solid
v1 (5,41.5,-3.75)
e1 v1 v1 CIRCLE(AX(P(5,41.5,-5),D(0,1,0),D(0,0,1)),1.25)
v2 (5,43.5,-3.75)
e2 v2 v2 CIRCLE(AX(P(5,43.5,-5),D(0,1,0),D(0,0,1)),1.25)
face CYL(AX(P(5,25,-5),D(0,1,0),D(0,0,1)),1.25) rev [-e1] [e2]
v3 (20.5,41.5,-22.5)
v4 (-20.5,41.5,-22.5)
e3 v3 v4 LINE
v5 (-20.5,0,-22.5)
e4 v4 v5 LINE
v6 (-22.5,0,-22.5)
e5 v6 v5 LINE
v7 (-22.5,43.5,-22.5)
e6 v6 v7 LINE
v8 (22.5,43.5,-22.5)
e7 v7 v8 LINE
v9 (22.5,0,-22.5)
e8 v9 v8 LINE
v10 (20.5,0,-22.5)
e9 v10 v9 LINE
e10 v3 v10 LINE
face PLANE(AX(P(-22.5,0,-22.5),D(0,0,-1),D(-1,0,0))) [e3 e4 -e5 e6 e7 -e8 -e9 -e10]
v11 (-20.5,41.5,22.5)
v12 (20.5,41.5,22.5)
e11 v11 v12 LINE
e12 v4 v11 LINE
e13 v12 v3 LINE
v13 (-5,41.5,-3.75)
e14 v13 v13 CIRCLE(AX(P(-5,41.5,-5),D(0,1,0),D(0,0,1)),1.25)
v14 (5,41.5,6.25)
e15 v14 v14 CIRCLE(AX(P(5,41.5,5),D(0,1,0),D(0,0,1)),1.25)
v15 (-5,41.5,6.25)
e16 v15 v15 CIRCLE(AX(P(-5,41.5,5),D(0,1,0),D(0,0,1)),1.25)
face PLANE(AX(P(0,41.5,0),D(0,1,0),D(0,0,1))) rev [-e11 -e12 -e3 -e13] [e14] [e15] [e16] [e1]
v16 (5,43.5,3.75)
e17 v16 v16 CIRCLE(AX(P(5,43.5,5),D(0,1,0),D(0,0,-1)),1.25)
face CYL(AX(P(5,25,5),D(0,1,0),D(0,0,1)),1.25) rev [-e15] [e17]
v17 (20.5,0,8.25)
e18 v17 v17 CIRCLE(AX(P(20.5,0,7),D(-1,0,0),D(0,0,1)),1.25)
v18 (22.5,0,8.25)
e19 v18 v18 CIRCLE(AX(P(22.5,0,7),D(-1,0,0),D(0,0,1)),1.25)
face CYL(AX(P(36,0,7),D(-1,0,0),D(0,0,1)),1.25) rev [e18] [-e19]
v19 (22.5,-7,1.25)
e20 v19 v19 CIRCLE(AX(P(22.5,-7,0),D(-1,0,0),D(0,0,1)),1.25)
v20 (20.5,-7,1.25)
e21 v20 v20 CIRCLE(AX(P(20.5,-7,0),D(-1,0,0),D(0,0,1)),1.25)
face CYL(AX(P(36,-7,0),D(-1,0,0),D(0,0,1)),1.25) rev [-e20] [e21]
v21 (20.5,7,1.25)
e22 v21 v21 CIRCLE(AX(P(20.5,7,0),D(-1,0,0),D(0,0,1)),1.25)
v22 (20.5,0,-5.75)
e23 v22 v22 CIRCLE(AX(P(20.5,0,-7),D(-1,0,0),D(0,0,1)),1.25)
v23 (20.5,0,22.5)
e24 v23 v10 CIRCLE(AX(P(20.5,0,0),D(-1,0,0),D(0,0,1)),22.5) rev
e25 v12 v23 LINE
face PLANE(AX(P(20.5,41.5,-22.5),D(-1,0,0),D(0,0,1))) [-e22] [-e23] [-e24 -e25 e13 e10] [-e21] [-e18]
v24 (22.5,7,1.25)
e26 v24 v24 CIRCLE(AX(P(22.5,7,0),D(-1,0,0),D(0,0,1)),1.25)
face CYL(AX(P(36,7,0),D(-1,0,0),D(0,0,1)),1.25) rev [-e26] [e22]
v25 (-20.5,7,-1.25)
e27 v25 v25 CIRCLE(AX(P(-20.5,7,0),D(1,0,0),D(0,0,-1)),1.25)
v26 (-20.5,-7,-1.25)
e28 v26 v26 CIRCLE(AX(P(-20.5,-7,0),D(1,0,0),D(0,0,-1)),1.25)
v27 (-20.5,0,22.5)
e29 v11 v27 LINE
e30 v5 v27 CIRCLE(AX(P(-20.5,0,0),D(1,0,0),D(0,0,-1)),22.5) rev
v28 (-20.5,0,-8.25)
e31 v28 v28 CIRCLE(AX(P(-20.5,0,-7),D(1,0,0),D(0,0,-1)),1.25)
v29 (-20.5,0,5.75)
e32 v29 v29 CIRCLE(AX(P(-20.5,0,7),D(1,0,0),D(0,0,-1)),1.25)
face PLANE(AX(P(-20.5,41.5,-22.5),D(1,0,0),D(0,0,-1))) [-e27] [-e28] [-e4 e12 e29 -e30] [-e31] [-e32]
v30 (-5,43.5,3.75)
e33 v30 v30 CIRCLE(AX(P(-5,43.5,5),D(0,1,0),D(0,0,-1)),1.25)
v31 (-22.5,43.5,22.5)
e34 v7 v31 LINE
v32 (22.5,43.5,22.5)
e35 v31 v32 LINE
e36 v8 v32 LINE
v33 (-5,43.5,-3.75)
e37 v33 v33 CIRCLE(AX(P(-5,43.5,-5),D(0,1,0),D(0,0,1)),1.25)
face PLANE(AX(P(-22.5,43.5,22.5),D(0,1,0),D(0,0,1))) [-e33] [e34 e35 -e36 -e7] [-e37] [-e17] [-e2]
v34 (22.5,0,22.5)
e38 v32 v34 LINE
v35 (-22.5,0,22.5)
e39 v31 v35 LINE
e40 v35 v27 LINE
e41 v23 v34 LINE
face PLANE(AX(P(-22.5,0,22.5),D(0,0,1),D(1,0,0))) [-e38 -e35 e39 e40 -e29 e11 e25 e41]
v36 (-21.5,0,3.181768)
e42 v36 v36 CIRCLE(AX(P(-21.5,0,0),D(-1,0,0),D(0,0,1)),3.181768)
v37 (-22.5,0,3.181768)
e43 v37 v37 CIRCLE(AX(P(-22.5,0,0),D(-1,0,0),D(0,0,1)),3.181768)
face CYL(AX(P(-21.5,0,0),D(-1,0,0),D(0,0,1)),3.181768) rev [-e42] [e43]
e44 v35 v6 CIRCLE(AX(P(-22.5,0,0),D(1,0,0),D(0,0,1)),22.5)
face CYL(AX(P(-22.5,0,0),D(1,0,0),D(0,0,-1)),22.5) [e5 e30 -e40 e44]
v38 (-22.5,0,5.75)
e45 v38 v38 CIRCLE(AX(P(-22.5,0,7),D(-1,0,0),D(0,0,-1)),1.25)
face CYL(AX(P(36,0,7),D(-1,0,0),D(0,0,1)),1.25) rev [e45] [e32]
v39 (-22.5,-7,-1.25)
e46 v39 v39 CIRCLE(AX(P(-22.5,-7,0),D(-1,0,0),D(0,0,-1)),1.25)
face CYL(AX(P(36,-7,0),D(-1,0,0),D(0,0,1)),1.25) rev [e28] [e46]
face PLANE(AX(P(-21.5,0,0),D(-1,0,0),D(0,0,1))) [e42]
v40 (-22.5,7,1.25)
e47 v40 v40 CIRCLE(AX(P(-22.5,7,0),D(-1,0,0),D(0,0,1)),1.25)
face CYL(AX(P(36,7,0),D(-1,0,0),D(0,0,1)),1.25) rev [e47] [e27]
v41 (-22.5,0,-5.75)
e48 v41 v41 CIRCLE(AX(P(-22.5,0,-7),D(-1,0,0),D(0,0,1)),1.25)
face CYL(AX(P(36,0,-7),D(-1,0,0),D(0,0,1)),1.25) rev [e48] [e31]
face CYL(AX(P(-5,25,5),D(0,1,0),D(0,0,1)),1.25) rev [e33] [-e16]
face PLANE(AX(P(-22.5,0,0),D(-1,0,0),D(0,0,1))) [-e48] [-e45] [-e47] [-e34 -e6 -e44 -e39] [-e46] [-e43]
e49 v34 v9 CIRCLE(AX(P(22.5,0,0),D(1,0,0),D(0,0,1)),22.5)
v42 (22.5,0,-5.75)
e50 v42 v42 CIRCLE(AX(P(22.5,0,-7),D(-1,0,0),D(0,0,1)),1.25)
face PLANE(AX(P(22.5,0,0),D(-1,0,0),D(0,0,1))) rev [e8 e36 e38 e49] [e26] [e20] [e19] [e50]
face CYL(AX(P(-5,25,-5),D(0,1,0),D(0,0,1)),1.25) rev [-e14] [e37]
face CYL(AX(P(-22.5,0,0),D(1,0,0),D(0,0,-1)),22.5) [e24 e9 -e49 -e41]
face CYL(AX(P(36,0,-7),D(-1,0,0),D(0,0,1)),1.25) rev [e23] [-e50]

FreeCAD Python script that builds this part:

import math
import FreeCAD as App
import Part
import Sketcher

V = App.Vector

doc = App.newDocument("Part")
body = doc.addObject("PartDesign::Body", "Body")

sketch1 = body.newObject("Sketcher::SketchObject", "Sketch")
sketch1.AttachmentSupport = (doc.getObject("YZ_Plane"), [""])
sketch1.MapMode = "FlatFace"
sketch1.addGeometry(Part.LineSegment(V(44, 22, 0), V(0, 22, 0)), False)
sketch1.addGeometry(Part.ArcOfCircle(Part.Circle(V(0, 0, 0), V(0, 0, 1), 22), math.radians(90), math.radians(270)), False)
sketch1.addGeometry(Part.LineSegment(V(0, -22, 0), V(44, -22, 0)), False)
sketch1.addGeometry(Part.LineSegment(V(44, -22, 0), V(44, 22, 0)), False)
sketch1.addConstraint(Sketcher.Constraint("Tangent", 0, 2, 1, 1))
sketch1.addConstraint(Sketcher.Constraint("Tangent", 1, 2, 2, 1))
sketch1.addConstraint(Sketcher.Constraint("Coincident", 2, 2, 3, 1))
sketch1.addConstraint(Sketcher.Constraint("Coincident", 3, 2, 0, 1))
sketch1.addConstraint(Sketcher.Constraint("Horizontal", 0))
sketch1.addConstraint(Sketcher.Constraint("Horizontal", 2))
sketch1.addConstraint(Sketcher.Constraint("Vertical", 3))
sketch1.addConstraint(Sketcher.Constraint("Coincident", 1, 3, -1, 1))
sketch1.addConstraint(Sketcher.Constraint("Radius", 1, 22.5))
sketch1.addConstraint(Sketcher.Constraint("DistanceX", 0, 2, 0, 1, 43.5))
pad1 = body.newObject("PartDesign::Pad", "Pad")
pad1.Profile = sketch1
pad1.Type = "TwoLengths"
pad1.Length = 22.5
pad1.Length2 = 22.5

sketch2 = body.newObject("Sketcher::SketchObject", "Sketch001")
sketch2.AttachmentSupport = (doc.getObject("XZ_Plane"), [""])
sketch2.MapMode = "FlatFace"
sketch2.addGeometry(Part.LineSegment(V(-20, -22, 0), V(-20, 22, 0)), False)
sketch2.addGeometry(Part.LineSegment(V(-20, 22, 0), V(20, 22, 0)), False)
sketch2.addGeometry(Part.LineSegment(V(20, 22, 0), V(20, -22, 0)), False)
sketch2.addGeometry(Part.LineSegment(V(20, -22, 0), V(-20, -22, 0)), False)
sketch2.addConstraint(Sketcher.Constraint("Coincident", 0, 2, 1, 1))
sketch2.addConstraint(Sketcher.Constraint("Coincident", 1, 2, 2, 1))
sketch2.addConstraint(Sketcher.Constraint("Coincident", 2, 2, 3, 1))
sketch2.addConstraint(Sketcher.Constraint("Coincident", 3, 2, 0, 1))
sketch2.addConstraint(Sketcher.Constraint("Vertical", 0))
sketch2.addConstraint(Sketcher.Constraint("Horizontal", 1))
sketch2.addConstraint(Sketcher.Constraint("Vertical", 2))
sketch2.addConstraint(Sketcher.Constraint("Horizontal", 3))
sketch2.addConstraint(Sketcher.Constraint("Symmetric", 0, 2, 2, 2, -1, 1))
sketch2.addConstraint(Sketcher.Constraint("DistanceX", 1, 1, 1, 2, 41.0))
sketch2.addConstraint(Sketcher.Constraint("DistanceY", 0, 1, 0, 2, 45.0))
pocket1 = body.newObject("PartDesign::Pocket", "Pocket")
pocket1.Profile = sketch2
pocket1.Type = "TwoLengths"
pocket1.Length = 41.5
pocket1.Length2 = 22.5

sketch3 = body.newObject("Sketcher::SketchObject", "Sketch002")
sketch3.AttachmentSupport = (doc.getObject("XZ_Plane"), [""])
sketch3.MapMode = "FlatFace"
sketch3.AttachmentOffset = App.Placement(V(0, 0, -43.5), App.Rotation())
sketch3.addGeometry(Part.Circle(V(-5, -5, 0), V(0, 0, 1), 1.2), False)
sketch3.addGeometry(Part.Circle(V(5, 5, 0), V(0, 0, 1), 1.2), False)
sketch3.addGeometry(Part.Circle(V(5, -5, 0), V(0, 0, 1), 1.2), False)
sketch3.addGeometry(Part.Circle(V(-5, 5, 0), V(0, 0, 1), 1.2), False)
sketch3.addConstraint(Sketcher.Constraint("Equal", 0, 1))
sketch3.addConstraint(Sketcher.Constraint("Equal", 1, 2))
sketch3.addConstraint(Sketcher.Constraint("Equal", 2, 3))
sketch3.addConstraint(Sketcher.Constraint("Symmetric", 0, 3, 1, 3, -1, 1))
sketch3.addConstraint(Sketcher.Constraint("Symmetric", 2, 3, 3, 3, -1, 1))
sketch3.addConstraint(Sketcher.Constraint("Symmetric", 0, 3, 2, 3, -2))
sketch3.addConstraint(Sketcher.Constraint("Diameter", 0, 2.5))
sketch3.addConstraint(Sketcher.Constraint("DistanceX", 0, 3, -1, 1, 5.0))
sketch3.addConstraint(Sketcher.Constraint("DistanceY", 0, 3, -1, 1, 5.0))
pocket2 = body.newObject("PartDesign::Pocket", "Pocket001")
pocket2.Profile = sketch3
pocket2.Length = 18.5
pocket2.Reversed = True

sketch4 = body.newObject("Sketcher::SketchObject", "Sketch003")
sketch4.AttachmentSupport = (doc.getObject("YZ_Plane"), [""])
sketch4.MapMode = "FlatFace"
sketch4.AttachmentOffset = App.Placement(V(0, 0, -22.5), App.Rotation())
sketch4.addGeometry(Part.Circle(V(7, 0, 0), V(0, 0, 1), 1.2), False)
sketch4.addGeometry(Part.Circle(V(-7, 0, 0), V(0, 0, 1), 1.2), False)
sketch4.addGeometry(Part.Circle(V(0, -7, 0), V(0, 0, 1), 1.2), False)
sketch4.addGeometry(Part.Circle(V(0, 7, 0), V(0, 0, 1), 1.2), False)
sketch4.addConstraint(Sketcher.Constraint("Equal", 0, 1))
sketch4.addConstraint(Sketcher.Constraint("Equal", 1, 2))
sketch4.addConstraint(Sketcher.Constraint("Equal", 2, 3))
sketch4.addConstraint(Sketcher.Constraint("Symmetric", 0, 3, 1, 3, -1, 1))
sketch4.addConstraint(Sketcher.Constraint("Symmetric", 2, 3, 3, 3, -1, 1))
sketch4.addConstraint(Sketcher.Constraint("PointOnObject", 0, 3, -1))
sketch4.addConstraint(Sketcher.Constraint("PointOnObject", 2, 3, -2))
sketch4.addConstraint(Sketcher.Constraint("Diameter", 0, 2.5))
sketch4.addConstraint(Sketcher.Constraint("DistanceX", -1, 1, 0, 3, 7.0))
sketch4.addConstraint(Sketcher.Constraint("DistanceY", 2, 3, -1, 1, 7.0))
pocket3 = body.newObject("PartDesign::Pocket", "Pocket002")
pocket3.Profile = sketch4
pocket3.Length = 58.5
pocket3.Reversed = True

sketch5 = body.newObject("Sketcher::SketchObject", "Sketch004")
sketch5.AttachmentSupport = (doc.getObject("YZ_Plane"), [""])
sketch5.MapMode = "FlatFace"
sketch5.AttachmentOffset = App.Placement(V(0, 0, -22.5), App.Rotation())
sketch5.addGeometry(Part.Circle(V(0, 0, 0), V(0, 0, 1), 3.2), False)
sketch5.addConstraint(Sketcher.Constraint("Coincident", 0, 3, -1, 1))
sketch5.addConstraint(Sketcher.Constraint("Diameter", 0, 6.363536))
pocket4 = body.newObject("PartDesign::Pocket", "Pocket003")
pocket4.Profile = sketch5
pocket4.Length = 1
pocket4.Reversed = True

doc.recompute()
